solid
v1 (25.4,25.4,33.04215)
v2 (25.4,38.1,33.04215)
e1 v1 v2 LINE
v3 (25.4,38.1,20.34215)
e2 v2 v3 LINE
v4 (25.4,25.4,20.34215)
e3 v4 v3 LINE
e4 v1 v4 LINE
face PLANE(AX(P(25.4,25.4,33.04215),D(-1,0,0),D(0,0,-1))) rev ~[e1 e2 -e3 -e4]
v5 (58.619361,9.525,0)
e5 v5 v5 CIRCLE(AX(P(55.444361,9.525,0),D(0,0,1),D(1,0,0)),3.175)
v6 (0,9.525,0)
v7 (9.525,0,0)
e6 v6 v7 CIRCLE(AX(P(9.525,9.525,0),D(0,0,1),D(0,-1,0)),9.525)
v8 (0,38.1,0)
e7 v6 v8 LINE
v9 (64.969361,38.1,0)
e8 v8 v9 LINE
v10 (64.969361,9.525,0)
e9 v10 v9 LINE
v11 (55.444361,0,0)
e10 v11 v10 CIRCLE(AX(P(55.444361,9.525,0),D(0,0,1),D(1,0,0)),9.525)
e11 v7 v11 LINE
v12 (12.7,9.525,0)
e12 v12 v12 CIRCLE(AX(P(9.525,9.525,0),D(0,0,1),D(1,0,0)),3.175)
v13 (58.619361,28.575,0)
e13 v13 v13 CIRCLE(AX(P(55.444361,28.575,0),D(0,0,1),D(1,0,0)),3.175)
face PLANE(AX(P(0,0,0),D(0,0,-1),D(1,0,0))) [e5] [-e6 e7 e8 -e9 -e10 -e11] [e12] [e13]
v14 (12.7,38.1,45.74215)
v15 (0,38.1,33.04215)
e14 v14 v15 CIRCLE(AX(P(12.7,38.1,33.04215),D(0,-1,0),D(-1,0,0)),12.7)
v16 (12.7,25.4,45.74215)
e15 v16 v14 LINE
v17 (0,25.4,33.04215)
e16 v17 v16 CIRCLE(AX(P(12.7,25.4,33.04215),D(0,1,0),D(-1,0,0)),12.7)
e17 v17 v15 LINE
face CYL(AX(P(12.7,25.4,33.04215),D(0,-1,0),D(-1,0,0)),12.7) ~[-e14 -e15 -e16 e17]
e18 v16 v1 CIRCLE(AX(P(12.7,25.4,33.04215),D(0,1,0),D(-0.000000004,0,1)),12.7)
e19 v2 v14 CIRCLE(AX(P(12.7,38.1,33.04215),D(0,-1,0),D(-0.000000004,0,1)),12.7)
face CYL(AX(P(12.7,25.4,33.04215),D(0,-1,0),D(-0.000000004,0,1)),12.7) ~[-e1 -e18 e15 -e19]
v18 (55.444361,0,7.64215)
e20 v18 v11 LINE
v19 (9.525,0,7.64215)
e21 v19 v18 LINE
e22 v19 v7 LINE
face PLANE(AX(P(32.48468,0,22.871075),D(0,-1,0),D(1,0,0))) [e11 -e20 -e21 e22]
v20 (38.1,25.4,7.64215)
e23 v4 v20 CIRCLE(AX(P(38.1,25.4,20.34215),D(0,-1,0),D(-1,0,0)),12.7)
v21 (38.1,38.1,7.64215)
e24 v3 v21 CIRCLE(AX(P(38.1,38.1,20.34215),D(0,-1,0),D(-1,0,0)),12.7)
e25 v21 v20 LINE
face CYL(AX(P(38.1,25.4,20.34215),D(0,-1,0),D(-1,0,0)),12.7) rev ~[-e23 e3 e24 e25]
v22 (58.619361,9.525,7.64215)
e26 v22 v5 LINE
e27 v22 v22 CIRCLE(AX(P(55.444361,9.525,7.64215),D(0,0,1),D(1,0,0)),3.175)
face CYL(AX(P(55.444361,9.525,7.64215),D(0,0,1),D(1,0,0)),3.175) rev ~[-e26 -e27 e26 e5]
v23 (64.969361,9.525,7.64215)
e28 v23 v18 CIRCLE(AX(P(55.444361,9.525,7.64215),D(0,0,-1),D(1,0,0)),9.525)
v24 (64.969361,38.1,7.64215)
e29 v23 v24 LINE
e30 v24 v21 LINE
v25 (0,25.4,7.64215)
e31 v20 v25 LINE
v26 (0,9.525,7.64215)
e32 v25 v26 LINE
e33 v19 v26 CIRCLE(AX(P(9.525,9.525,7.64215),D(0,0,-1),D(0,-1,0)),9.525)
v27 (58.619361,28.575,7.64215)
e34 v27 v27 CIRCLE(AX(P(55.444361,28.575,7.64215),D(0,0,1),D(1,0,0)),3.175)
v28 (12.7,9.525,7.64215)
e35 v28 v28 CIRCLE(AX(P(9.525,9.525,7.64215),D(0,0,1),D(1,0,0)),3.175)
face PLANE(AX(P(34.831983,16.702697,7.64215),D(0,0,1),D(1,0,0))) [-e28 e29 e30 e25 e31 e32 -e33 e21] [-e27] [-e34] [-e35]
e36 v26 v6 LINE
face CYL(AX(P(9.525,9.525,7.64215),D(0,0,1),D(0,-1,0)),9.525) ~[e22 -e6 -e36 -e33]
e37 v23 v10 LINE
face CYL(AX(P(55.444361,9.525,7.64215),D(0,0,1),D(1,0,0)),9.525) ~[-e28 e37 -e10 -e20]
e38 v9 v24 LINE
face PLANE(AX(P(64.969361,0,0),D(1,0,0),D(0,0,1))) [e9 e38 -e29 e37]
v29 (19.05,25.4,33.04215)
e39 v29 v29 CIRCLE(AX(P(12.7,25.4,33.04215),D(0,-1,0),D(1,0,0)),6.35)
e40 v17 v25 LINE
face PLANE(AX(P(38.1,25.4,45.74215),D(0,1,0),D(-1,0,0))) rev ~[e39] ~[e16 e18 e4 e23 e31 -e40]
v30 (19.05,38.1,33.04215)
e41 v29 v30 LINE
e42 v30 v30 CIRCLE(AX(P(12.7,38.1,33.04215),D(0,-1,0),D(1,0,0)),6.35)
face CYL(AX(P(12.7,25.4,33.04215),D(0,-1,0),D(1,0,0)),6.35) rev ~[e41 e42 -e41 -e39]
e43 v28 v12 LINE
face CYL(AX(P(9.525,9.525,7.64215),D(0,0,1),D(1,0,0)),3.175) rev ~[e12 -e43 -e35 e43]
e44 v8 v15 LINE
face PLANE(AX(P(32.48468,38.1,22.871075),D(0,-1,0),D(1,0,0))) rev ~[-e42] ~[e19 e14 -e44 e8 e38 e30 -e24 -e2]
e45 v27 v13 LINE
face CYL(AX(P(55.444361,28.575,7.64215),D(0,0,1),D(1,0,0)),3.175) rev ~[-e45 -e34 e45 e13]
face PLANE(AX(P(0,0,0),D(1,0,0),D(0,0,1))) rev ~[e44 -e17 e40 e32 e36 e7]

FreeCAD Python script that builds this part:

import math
import FreeCAD as App
import Part
import Sketcher
Q = App.Units.Quantity


def add_polygon(sketch, points):
    """Adds a closed chain of lines whose ends are joined by coincident constraints."""
    first, n = sketch.GeometryCount, len(points)
    for a, b in zip(points, points[1:] + points[:1]):
        sketch.addGeometry(Part.LineSegment(App.Vector(*a, 0), App.Vector(*b, 0)), False)
    for i in range(n):
        sketch.addConstraint(Sketcher.Constraint("Coincident", first + i, 2, first + (i + 1) % n, 1))

doc = App.newDocument("Part")
params = doc.addObject("Spreadsheet::Sheet", "Params")
for row, (alias, value) in enumerate([
    ("pad1_length", "1.5 in"),
    ("sketch2_height", "1 in"),
    ("sketch2_width", "1.5 in"),
    ("pocket1_length", "1.5 in"),
    ("sketch3_diameter", "0.5 in"),
    ("sketch3_radius", "0.5 in"),
    ("sketch3_width", "1 in"),
    ("pocket2_length", "1 in"),
    ("sketch4_diameter", "0.25 in"),
    ("sketch4_radius", "0.375 in"),
    ("pocket3_length", "1 in"),
], start=1):
    params.set(f"A{row}", alias)
    params.set(f"B{row}", "=" + value)
    params.setAlias(f"B{row}", alias)

body = doc.addObject("PartDesign::Body", "Body")

# Sketch on XZ plane
sketch1 = body.newObject("Sketcher::SketchObject", "Sketch")
sketch1.AttachmentSupport = (doc.getObject("XZ_Plane"), [""])
sketch1.MapMode = "FlatFace"
add_polygon(sketch1, [(0, 45.74215), (0, 0), (64.969361, 0), (64.969361, 45.74215)])  # lines 0-3
sketch1.addConstraint(Sketcher.Constraint("Vertical", 0))
sketch1.addConstraint(Sketcher.Constraint("Horizontal", 1))
sketch1.addConstraint(Sketcher.Constraint("Vertical", 2))
sketch1.addConstraint(Sketcher.Constraint("Horizontal", 3))
sketch1.addConstraint(Sketcher.Constraint("Coincident", 0, 2, -1, 1))
sketch1.addConstraint(Sketcher.Constraint("DistanceX", 1, 1, 1, 2, 64.969361))
sketch1.addConstraint(Sketcher.Constraint("DistanceY", 0, 2, 0, 1, 45.74215))
pad1 = body.newObject("PartDesign::Pad", "Pad")
pad1.Profile = sketch1
pad1.setExpression("Length", "Params.pad1_length")
pad1.Reversed = True

# Sketch on XY plane
sketch2 = body.newObject("Sketcher::SketchObject", "Sketch001")
sketch2.AttachmentSupport = (doc.getObject("XY_Plane"), [""])
sketch2.MapMode = "FlatFace"
sketch2.AttachmentOffset = App.Placement(App.Vector(0, 0, 45.74215), App.Rotation())
add_polygon(sketch2, [(38.1, 25.4), (0, 25.4), (0, 0), (64.969361, 0), (64.969361, 38.1), (38.1, 38.1)])  # lines 0-5
sketch2.addConstraint(Sketcher.Constraint("Horizontal", 0))
sketch2.addConstraint(Sketcher.Constraint("Vertical", 1))
sketch2.addConstraint(Sketcher.Constraint("Horizontal", 2))
sketch2.addConstraint(Sketcher.Constraint("Vertical", 3))
sketch2.addConstraint(Sketcher.Constraint("Horizontal", 4))
sketch2.addConstraint(Sketcher.Constraint("Vertical", 5))
sketch2.addConstraint(Sketcher.Constraint("Coincident", 1, 2, -1, 1))
sketch2.addConstraint(Sketcher.Constraint("Equal", 0, 3))
sketch2.addConstraint(Sketcher.Constraint("DistanceY", 1, 2, 1, 1, Q("1 in")))
sketch2.addConstraint(Sketcher.Constraint("DistanceX", 0, 2, 0, 1, Q("1.5 in")))
sketch2.addConstraint(Sketcher.Constraint("DistanceX", 2, 1, 2, 2, 64.969361))
sketch2.setExpression("Constraints[14]", "Params.sketch2_height")
sketch2.setExpression("Constraints[15]", "Params.sketch2_width")
pocket1 = body.newObject("PartDesign::Pocket", "Pocket")
pocket1.Profile = sketch2
pocket1.setExpression("Length", "Params.pocket1_length")

# Sketch on XZ plane
sketch3 = body.newObject("Sketcher::SketchObject", "Sketch002")
sketch3.AttachmentSupport = (doc.getObject("XZ_Plane"), [""])
sketch3.MapMode = "FlatFace"
sketch3.AttachmentOffset = App.Placement(App.Vector(0, 0, -1 * 25.4), App.Rotation())
sketch3.addGeometry(Part.Circle(App.Vector(12.7, 33.04215, 0), App.Vector(0, 0, 1), 6.35), False)
sketch3.addGeometry(Part.ArcOfCircle(Part.Circle(App.Vector(12.7, 33.04215, 0), App.Vector(0, 0, 1), 12.7), math.radians(0), math.radians(90)), False)
sketch3.addGeometry(Part.LineSegment(App.Vector(25.4, 33.04215, 0), App.Vector(25.4, 20.34215, 0)), False)
sketch3.addGeometry(Part.ArcOfCircle(Part.Circle(App.Vector(38.1, 20.34215, 0), App.Vector(0, 0, 1), 12.7), math.radians(180), math.radians(270)), False)
sketch3.addGeometry(Part.LineSegment(App.Vector(38.1, 7.64215, 0), App.Vector(38.1, 45.74215, 0)), False)
sketch3.addGeometry(Part.LineSegment(App.Vector(38.1, 45.74215, 0), App.Vector(12.7, 45.74215, 0)), False)
sketch3.addGeometry(Part.ArcOfCircle(Part.Circle(App.Vector(12.7, 33.04215, 0), App.Vector(0, 0, 1), 12.7), math.radians(90), math.radians(180)), False)
sketch3.addGeometry(Part.LineSegment(App.Vector(12.7, 45.74215, 0), App.Vector(0, 45.74215, 0)), False)
sketch3.addGeometry(Part.LineSegment(App.Vector(0, 45.74215, 0), App.Vector(0, 33.04215, 0)), False)
sketch3.addConstraint(Sketcher.Constraint("Tangent", 1, 1, 2, 1))
sketch3.addConstraint(Sketcher.Constraint("Tangent", 2, 2, 3, 1))
sketch3.addConstraint(Sketcher.Constraint("Coincident", 3, 2, 4, 1))
sketch3.addConstraint(Sketcher.Constraint("Coincident", 4, 2, 5, 1))
sketch3.addConstraint(Sketcher.Constraint("Tangent", 5, 2, 1, 2))
sketch3.addConstraint(Sketcher.Constraint("Tangent", 6, 1, 7, 1))
sketch3.addConstraint(Sketcher.Constraint("Coincident", 7, 2, 8, 1))
sketch3.addConstraint(Sketcher.Constraint("Tangent", 8, 2, 6, 2))
sketch3.addConstraint(Sketcher.Constraint("Vertical", 2))
sketch3.addConstraint(Sketcher.Constraint("Vertical", 4))
sketch3.addConstraint(Sketcher.Constraint("Horizontal", 5))
sketch3.addConstraint(Sketcher.Constraint("Horizontal", 7))
sketch3.addConstraint(Sketcher.Constraint("Vertical", 8))
sketch3.addConstraint(Sketcher.Constraint("Coincident", 1, 3, 0, 3))
sketch3.addConstraint(Sketcher.Constraint("Coincident", 6, 3, 0, 3))
sketch3.addConstraint(Sketcher.Constraint("Equal", 1, 3))
sketch3.addConstraint(Sketcher.Constraint("Equal", 3, 6))
sketch3.addConstraint(Sketcher.Constraint("PointOnObject", 7, 2, -2))
sketch3.addConstraint(Sketcher.Constraint("Equal", 7, 2))
sketch3.addConstraint(Sketcher.Constraint("Diameter", 0, Q("0.5 in")))
sketch3.addConstraint(Sketcher.Constraint("Radius", 1, Q("0.5 in")))
sketch3.addConstraint(Sketcher.Constraint("DistanceX", 5, 2, 5, 1, Q("1 in")))
sketch3.addConstraint(Sketcher.Constraint("DistanceY", -1, 1, 0, 3, 33.04215))
sketch3.setExpression("Constraints[19]", "Params.sketch3_diameter")
sketch3.setExpression("Constraints[20]", "Params.sketch3_radius")
sketch3.setExpression("Constraints[21]", "Params.sketch3_width")
pocket2 = body.newObject("PartDesign::Pocket", "Pocket001")
pocket2.Profile = sketch3
pocket2.setExpression("Length", "Params.pocket2_length")

# Sketch on XY plane
sketch4 = body.newObject("Sketcher::SketchObject", "Sketch003")
sketch4.AttachmentSupport = (doc.getObject("XY_Plane"), [""])
sketch4.MapMode = "FlatFace"
sketch4.AttachmentOffset = App.Placement(App.Vector(0, 0, 7.64215), App.Rotation())
sketch4.addGeometry(Part.Circle(App.Vector(9.525, 9.525, 0), App.Vector(0, 0, 1), 3.175), False)
sketch4.addGeometry(Part.Circle(App.Vector(55.444361, 9.525, 0), App.Vector(0, 0, 1), 3.175), False)
sketch4.addGeometry(Part.Circle(App.Vector(55.444361, 28.575, 0), App.Vector(0, 0, 1), 3.175), False)
sketch4.addGeometry(Part.ArcOfCircle(Part.Circle(App.Vector(55.444361, 9.525, 0), App.Vector(0, 0, 1), 9.525), math.radians(-90), math.radians(0)), False)
sketch4.addGeometry(Part.LineSegment(App.Vector(55.444361, 0, 0), App.Vector(64.969361, 0, 0)), False)
sketch4.addGeometry(Part.LineSegment(App.Vector(64.969361, 0, 0), App.Vector(64.969361, 9.525, 0)), False)
sketch4.addGeometry(Part.ArcOfCircle(Part.Circle(App.Vector(9.525, 9.525, 0), App.Vector(0, 0, 1), 9.525), math.radians(180), math.radians(270)), False)
sketch4.addGeometry(Part.LineSegment(App.Vector(0, 9.525, 0), App.Vector(0, 0, 0)), False)
sketch4.addGeometry(Part.LineSegment(App.Vector(0, 0, 0), App.Vector(9.525, 0, 0)), False)
sketch4.addConstraint(Sketcher.Constraint("Tangent", 3, 1, 4, 1))
sketch4.addConstraint(Sketcher.Constraint("Coincident", 4, 2, 5, 1))
sketch4.addConstraint(Sketcher.Constraint("Tangent", 5, 2, 3, 2))
sketch4.addConstraint(Sketcher.Constraint("Tangent", 6, 1, 7, 1))
sketch4.addConstraint(Sketcher.Constraint("Coincident", 7, 2, 8, 1))
sketch4.addConstraint(Sketcher.Constraint("Tangent", 8, 2, 6, 2))
sketch4.addConstraint(Sketcher.Constraint("Horizontal", 4))
sketch4.addConstraint(Sketcher.Constraint("Vertical", 5))
sketch4.addConstraint(Sketcher.Constraint("Vertical", 7))
sketch4.addConstraint(Sketcher.Constraint("Horizontal", 8))
sketch4.addConstraint(Sketcher.Constraint("Coincident", 7, 2, -1, 1))
sketch4.addConstraint(Sketcher.Constraint("Coincident", 3, 3, 1, 3))
sketch4.addConstraint(Sketcher.Constraint("Coincident", 6, 3, 0, 3))
sketch4.addConstraint(Sketcher.Constraint("Equal", 0, 1))
sketch4.addConstraint(Sketcher.Constraint("Equal", 1, 2))
sketch4.addConstraint(Sketcher.Constraint("Equal", 3, 6))
sketch4.addConstraint(Sketcher.Constraint("PointOnObject", 3, 1, -1))
sketch4.addConstraint(Sketcher.Constraint("Vertical", 1, 3, 2, 3))
sketch4.addConstraint(Sketcher.Constraint("Diameter", 0, Q("0.25 in")))
sketch4.addConstraint(Sketcher.Constraint("Radius", 3, Q("0.375 in")))
sketch4.addConstraint(Sketcher.Constraint("DistanceY", 1, 3, 2, 3, Q("0.75 in")))
sketch4.addConstraint(Sketcher.Constraint("DistanceX", -1, 1, 1, 3, 55.444361))
sketch4.setExpression("Constraints[18]", "Params.sketch4_diameter")
sketch4.setExpression("Constraints[19]", "Params.sketch4_radius")
pocket3 = body.newObject("PartDesign::Pocket", "Pocket002")
pocket3.Profile = sketch4
pocket3.setExpression("Length", "Params.pocket3_length")

doc.recompute()
